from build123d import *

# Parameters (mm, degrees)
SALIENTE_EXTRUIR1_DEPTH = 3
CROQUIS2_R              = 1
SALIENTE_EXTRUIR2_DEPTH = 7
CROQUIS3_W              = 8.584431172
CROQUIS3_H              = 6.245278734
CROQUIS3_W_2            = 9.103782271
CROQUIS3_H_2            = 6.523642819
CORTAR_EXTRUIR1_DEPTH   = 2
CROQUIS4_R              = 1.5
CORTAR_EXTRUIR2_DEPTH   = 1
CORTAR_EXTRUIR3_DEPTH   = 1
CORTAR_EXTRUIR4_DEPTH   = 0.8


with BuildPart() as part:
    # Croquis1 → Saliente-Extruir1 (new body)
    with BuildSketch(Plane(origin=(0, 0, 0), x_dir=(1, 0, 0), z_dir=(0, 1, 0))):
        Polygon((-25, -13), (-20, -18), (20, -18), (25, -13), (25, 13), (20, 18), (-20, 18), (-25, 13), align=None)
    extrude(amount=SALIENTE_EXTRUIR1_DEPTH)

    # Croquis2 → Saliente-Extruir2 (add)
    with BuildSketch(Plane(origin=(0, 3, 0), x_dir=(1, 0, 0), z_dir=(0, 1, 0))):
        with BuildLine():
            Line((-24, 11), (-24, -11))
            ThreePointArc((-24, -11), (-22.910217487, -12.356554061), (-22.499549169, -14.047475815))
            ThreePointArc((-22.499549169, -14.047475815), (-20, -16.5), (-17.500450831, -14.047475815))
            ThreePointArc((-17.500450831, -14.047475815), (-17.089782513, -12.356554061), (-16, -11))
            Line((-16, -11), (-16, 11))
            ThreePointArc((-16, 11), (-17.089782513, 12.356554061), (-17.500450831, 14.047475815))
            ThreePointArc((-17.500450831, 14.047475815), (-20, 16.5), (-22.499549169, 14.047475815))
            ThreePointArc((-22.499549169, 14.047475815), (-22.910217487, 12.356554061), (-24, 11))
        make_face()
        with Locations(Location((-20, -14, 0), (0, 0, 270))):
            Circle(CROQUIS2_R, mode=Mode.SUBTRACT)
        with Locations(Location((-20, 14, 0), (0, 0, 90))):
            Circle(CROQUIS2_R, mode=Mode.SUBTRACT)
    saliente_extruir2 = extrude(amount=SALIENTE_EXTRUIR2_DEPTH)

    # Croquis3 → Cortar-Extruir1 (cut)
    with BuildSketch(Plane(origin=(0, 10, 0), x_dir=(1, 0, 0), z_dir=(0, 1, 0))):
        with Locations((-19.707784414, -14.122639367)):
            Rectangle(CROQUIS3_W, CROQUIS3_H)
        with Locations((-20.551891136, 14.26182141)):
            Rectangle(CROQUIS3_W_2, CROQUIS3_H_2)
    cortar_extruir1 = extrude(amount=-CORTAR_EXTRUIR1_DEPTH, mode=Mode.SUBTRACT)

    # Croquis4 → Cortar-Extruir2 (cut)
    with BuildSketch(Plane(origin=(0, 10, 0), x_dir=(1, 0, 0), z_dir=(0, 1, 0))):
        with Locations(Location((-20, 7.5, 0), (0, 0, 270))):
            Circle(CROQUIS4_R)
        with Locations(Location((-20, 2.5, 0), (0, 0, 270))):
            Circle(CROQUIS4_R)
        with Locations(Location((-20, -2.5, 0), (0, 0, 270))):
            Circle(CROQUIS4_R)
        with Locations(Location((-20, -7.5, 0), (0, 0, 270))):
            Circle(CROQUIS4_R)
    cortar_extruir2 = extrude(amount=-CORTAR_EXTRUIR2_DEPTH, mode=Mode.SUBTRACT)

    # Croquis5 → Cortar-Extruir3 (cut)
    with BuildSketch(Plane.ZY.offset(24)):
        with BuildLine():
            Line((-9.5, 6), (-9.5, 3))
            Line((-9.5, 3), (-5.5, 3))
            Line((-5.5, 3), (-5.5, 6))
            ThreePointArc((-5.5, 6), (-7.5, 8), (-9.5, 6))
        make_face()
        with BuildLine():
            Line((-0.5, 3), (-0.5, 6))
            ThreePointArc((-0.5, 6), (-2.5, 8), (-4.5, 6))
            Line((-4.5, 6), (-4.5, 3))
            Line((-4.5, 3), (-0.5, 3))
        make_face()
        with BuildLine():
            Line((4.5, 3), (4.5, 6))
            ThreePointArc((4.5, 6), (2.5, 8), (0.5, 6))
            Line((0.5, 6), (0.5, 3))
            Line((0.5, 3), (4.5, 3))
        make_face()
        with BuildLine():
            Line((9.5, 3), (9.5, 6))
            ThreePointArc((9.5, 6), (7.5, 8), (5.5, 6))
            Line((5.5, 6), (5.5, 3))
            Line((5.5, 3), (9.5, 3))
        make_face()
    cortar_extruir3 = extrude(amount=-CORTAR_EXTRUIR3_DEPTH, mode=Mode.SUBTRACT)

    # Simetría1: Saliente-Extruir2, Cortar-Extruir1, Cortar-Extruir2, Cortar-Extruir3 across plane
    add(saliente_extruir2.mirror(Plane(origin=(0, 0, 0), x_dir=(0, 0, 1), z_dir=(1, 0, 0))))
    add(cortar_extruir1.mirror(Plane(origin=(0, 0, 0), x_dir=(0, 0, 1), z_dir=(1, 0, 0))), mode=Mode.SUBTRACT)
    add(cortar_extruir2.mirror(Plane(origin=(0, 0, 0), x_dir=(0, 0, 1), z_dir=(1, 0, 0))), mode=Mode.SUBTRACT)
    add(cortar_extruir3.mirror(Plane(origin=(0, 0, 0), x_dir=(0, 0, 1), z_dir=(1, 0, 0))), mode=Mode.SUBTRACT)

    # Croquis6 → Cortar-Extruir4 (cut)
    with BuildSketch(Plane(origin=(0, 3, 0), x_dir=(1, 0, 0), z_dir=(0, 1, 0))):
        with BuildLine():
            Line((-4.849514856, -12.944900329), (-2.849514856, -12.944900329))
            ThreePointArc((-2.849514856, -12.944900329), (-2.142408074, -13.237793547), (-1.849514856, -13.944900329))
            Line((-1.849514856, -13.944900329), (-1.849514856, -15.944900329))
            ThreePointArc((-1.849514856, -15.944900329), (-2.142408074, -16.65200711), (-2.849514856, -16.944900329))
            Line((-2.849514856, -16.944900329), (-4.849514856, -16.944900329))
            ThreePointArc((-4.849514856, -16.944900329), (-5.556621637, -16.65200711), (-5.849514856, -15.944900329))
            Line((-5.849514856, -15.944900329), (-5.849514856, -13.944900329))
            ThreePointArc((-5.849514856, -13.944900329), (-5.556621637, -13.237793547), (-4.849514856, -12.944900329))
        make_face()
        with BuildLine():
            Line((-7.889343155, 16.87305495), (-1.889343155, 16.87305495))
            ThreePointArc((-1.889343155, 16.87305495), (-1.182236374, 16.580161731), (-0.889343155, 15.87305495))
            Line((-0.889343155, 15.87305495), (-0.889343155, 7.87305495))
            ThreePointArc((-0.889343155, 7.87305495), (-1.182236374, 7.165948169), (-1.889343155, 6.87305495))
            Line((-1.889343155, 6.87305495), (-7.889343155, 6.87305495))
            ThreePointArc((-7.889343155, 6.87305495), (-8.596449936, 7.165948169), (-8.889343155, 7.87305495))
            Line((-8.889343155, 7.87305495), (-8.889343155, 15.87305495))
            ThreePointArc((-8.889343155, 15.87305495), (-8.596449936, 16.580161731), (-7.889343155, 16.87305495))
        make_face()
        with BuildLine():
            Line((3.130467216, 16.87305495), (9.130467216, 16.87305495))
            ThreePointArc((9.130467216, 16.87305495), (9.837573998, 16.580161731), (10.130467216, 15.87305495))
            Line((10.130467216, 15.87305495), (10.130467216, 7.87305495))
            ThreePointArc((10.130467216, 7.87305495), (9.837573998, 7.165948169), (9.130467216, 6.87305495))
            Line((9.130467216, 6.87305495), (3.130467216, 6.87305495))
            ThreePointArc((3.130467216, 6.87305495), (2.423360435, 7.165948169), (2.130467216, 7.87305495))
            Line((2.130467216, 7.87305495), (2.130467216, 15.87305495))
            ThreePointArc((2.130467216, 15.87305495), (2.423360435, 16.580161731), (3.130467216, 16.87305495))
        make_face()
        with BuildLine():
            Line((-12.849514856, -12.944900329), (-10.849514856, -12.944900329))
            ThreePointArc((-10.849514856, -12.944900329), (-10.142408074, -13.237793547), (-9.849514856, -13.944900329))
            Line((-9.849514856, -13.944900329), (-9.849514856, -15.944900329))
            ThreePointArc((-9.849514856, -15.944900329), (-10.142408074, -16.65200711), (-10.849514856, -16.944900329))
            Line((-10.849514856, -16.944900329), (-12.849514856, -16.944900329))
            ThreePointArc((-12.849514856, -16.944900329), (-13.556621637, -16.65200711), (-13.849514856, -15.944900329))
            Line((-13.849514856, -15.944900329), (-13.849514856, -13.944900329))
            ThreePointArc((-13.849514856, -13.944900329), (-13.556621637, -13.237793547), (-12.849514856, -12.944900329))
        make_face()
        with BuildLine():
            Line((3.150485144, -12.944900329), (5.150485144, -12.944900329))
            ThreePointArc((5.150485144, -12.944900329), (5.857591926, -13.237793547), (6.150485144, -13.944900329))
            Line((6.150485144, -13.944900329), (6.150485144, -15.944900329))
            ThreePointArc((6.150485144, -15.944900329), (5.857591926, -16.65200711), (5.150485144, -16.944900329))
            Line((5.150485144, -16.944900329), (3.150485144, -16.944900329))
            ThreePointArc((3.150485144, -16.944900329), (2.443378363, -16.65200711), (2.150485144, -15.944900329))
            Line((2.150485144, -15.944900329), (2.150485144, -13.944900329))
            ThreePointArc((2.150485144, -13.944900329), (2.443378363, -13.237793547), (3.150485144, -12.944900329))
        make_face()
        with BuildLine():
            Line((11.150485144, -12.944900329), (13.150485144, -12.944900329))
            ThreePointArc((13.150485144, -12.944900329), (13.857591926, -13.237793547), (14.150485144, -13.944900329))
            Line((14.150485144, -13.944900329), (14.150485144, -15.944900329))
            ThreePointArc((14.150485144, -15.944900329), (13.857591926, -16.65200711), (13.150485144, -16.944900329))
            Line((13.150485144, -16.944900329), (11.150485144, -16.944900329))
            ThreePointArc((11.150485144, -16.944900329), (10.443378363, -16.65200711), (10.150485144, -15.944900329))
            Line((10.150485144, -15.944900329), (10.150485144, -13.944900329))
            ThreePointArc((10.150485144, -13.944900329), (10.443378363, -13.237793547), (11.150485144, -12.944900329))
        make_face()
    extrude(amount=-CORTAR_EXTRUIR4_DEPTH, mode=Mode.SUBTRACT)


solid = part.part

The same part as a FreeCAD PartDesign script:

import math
import FreeCAD as App
import Part
import Sketcher

V = App.Vector


def add_polygon(sketch, points):
    """Adds a closed chain of lines whose ends are joined by coincident constraints."""
    first, n = sketch.GeometryCount, len(points)
    for a, b in zip(points, points[1:] + points[:1]):
        sketch.addGeometry(Part.LineSegment(App.Vector(*a, 0), App.Vector(*b, 0)), False)
    for i in range(n):
        sketch.addConstraint(Sketcher.Constraint("Coincident", first + i, 2, first + (i + 1) % n, 1))

doc = App.newDocument("Part")
body = doc.addObject("PartDesign::Body", "Body")

sketch1 = doc.addObject("Sketcher::SketchObject", "Sketch")
body.addObject(sketch1)
sketch1.AttachmentSupport = (doc.XZ_Plane, [""])
sketch1.MapMode = "FlatFace"
add_polygon(sketch1, [(-25, 13), (-20, 18), (20, 18), (25, 13), (25, -13), (20, -18), (-20, -18), (-25, -13)])
sketch1.addConstraint([
    Sketcher.Constraint("Horizontal", 1),
    Sketcher.Constraint("Vertical", 3),
    Sketcher.Constraint("Horizontal", 5),
    Sketcher.Constraint("Vertical", 7),
    Sketcher.Constraint("Symmetric", 0, 2, 4, 2, -1, 1),
    Sketcher.Constraint("Symmetric", 2, 2, 6, 2, -1, 1),
    Sketcher.Constraint("Perpendicular", 0, 2),
    Sketcher.Constraint("Perpendicular", 2, 4),
    Sketcher.Constraint("Perpendicular", 4, 6),
    Sketcher.Constraint("Horizontal", 3, 2, 6, 2),
    Sketcher.Constraint("Vertical", 1, 2, 4, 2),
    Sketcher.Constraint("DistanceX", 1, 1, 1, 2, 40.0),
    Sketcher.Constraint("DistanceY", 3, 2, 3, 1, 26.0),
    Sketcher.Constraint("DistanceY", -1, 1, 0, 2, 18.0),
])
pad1 = doc.addObject("PartDesign::Pad", "Pad")
body.addObject(pad1)
pad1.Profile = sketch1
pad1.Length = 3
pad1.Reversed = True

sketch2 = doc.addObject("Sketcher::SketchObject", "Sketch001")
body.addObject(sketch2)
sketch2.AttachmentSupport = (doc.XZ_Plane, [""])
sketch2.MapMode = "FlatFace"
sketch2.AttachmentOffset = App.Placement(V(0, 0, -3), App.Rotation())
sketch2.addGeometry([
    Part.LineSegment(V(-24, -11, 0), V(-24, 11, 0)),
    Part.ArcOfCircle(Part.Circle(V(-26.5, 14.1, 0), V(0, 0, 1), 4), math.radians(-51), math.radians(-1)),
    Part.ArcOfCircle(Part.Circle(V(-20, 14, 0), V(0, 0, 1), 2.5), math.radians(1), math.radians(179)),
    Part.ArcOfCircle(Part.Circle(V(-13.5, 14.1, 0), V(0, 0, 1), 4), math.radians(-179), math.radians(-129)),
    Part.LineSegment(V(-16, 11, 0), V(-16, -11, 0)),
    Part.ArcOfCircle(Part.Circle(V(-13.5, -14.1, 0), V(0, 0, 1), 4), math.radians(129), math.radians(179)),
    Part.ArcOfCircle(Part.Circle(V(-20, -14, 0), V(0, 0, 1), 2.5), math.radians(-179), math.radians(-1)),
    Part.ArcOfCircle(Part.Circle(V(-26.5, -14.1, 0), V(0, 0, 1), 4), math.radians(1), math.radians(51)),
    Part.Circle(V(-20, 14, 0), V(0, 0, 1), 1),
    Part.Circle(V(-20, -14, 0), V(0, 0, 1), 1),
], False)
sketch2.addConstraint([
    Sketcher.Constraint("Coincident", 0, 2, 1, 1),
    Sketcher.Constraint("Tangent", 1, 2, 2, 2),
    Sketcher.Constraint("Tangent", 2, 1, 3, 1),
    Sketcher.Constraint("Coincident", 3, 2, 4, 1),
    Sketcher.Constraint("Coincident", 4, 2, 5, 1),
    Sketcher.Constraint("Tangent", 5, 2, 6, 2),
    Sketcher.Constraint("Tangent", 6, 1, 7, 1),
    Sketcher.Constraint("Coincident", 7, 2, 0, 1),
    Sketcher.Constraint("Vertical", 0),
    Sketcher.Constraint("Vertical", 4),
    Sketcher.Constraint("Coincident", 8, 3, 2, 3),
    Sketcher.Constraint("Coincident", 9, 3, 6, 3),
    Sketcher.Constraint("Equal", 1, 3),
    Sketcher.Constraint("Equal", 3, 5),
    Sketcher.Constraint("Equal", 2, 6),
    Sketcher.Constraint("Equal", 5, 7),
    Sketcher.Constraint("Equal", 8, 9),
    Sketcher.Constraint("Symmetric", 3, 3, 5, 3, -1),
    Sketcher.Constraint("Symmetric", 1, 3, 7, 3, -1),
    Sketcher.Constraint("Horizontal", 1, 3, 3, 3),
    Sketcher.Constraint("Horizontal", 0, 2, 3, 2),
    Sketcher.Constraint("Diameter", 8, 2.0),
    Sketcher.Constraint("Radius", 1, 4.0),
    Sketcher.Constraint("Radius", 2, 2.5),
    Sketcher.Constraint("DistanceY", 0, 1, 0, 2, 22.0),
    Sketcher.Constraint("DistanceX", 2, 3, -1, 1, 20.0),
    Sketcher.Constraint("DistanceY", -1, 1, 2, 3, 14.0),
    Sketcher.Constraint("DistanceX", 0, 2, -1, 1, 24.0),
])
pad2 = doc.addObject("PartDesign::Pad", "Pad001")
body.addObject(pad2)
pad2.Profile = sketch2
pad2.Length = 7
pad2.Reversed = True

sketch3 = doc.addObject("Sketcher::SketchObject", "Sketch002")
body.addObject(sketch3)
sketch3.AttachmentSupport = (doc.XZ_Plane, [""])
sketch3.MapMode = "FlatFace"
sketch3.AttachmentOffset = App.Placement(V(0, 0, -10), App.Rotation())
add_polygon(sketch3, [(-24, 11), (-24, 17), (-15, 17), (-15, 11)])
add_polygon(sketch3, [(-25, -18), (-25, -11), (-16, -11), (-16, -18)])
sketch3.addConstraint([
    Sketcher.Constraint("Vertical", 0),
    Sketcher.Constraint("Horizontal", 1),
    Sketcher.Constraint("Vertical", 2),
    Sketcher.Constraint("Horizontal", 3),
    Sketcher.Constraint("Vertical", 4),
    Sketcher.Constraint("Horizontal", 5),
    Sketcher.Constraint("Vertical", 6),
    Sketcher.Constraint("Horizontal", 7),
    Sketcher.Constraint("DistanceX", 0, 2, -1, 1, 24.0),
    Sketcher.Constraint("DistanceY", -1, 1, 2, 2, 11.0),
    Sketcher.Constraint("DistanceY", 4, 2, -1, 1, 11.0),
    Sketcher.Constraint("DistanceX", 5, 2, -1, 1, 16.0),
    Sketcher.Constraint("DistanceX", 1, 1, 1, 2, 8.584431),
    Sketcher.Constraint("DistanceY", 0, 1, 0, 2, 6.245279),
    Sketcher.Constraint("DistanceX", 5, 1, 5, 2, 9.103782),
    Sketcher.Constraint("DistanceY", 4, 1, 4, 2, 6.523643),
])
pocket1 = doc.addObject("PartDesign::Pocket", "Pocket")
body.addObject(pocket1)
pocket1.Profile = sketch3
pocket1.Length = 2
pocket1.Reversed = True

sketch4 = doc.addObject("Sketcher::SketchObject", "Sketch003")
body.addObject(sketch4)
sketch4.AttachmentSupport = (doc.XZ_Plane, [""])
sketch4.MapMode = "FlatFace"
sketch4.AttachmentOffset = App.Placement(V(0, 0, -10), App.Rotation())
sketch4.addGeometry([
    Part.Circle(V(-20, -7.5, 0), V(0, 0, 1), 1.5),
    Part.Circle(V(-20, -2.5, 0), V(0, 0, 1), 1.5),
    Part.Circle(V(-20, 2.5, 0), V(0, 0, 1), 1.5),
    Part.Circle(V(-20, 7.5, 0), V(0, 0, 1), 1.5),
], False)
sketch4.addConstraint([
    Sketcher.Constraint("Equal", 0, 1),
    Sketcher.Constraint("Equal", 1, 2),
    Sketcher.Constraint("Equal", 2, 3),
    Sketcher.Constraint("Symmetric", 1, 3, 2, 3, -1),
    Sketcher.Constraint("Symmetric", 0, 3, 3, 3, -1),
    Sketcher.Constraint("Vertical", 0, 3, 1, 3),
    Sketcher.Constraint("Diameter", 0, 3.0),
    Sketcher.Constraint("DistanceX", 0, 3, -1, 1, 20.0),
    Sketcher.Constraint("DistanceY", 0, 3, 1, 3, 5.0),
    Sketcher.Constraint("DistanceY", 1, 3, 2, 3, 5.0),
])
pocket2 = doc.addObject("PartDesign::Pocket", "Pocket001")
body.addObject(pocket2)
pocket2.Profile = sketch4
pocket2.Length = 1
pocket2.Reversed = True

sketch5 = doc.addObject("Sketcher::SketchObject", "Sketch004")
body.addObject(sketch5)
sketch5.AttachmentSupport = (doc.YZ_Plane, [""])
sketch5.MapMode = "FlatFace"
sketch5.AttachmentOffset = App.Placement(V(0, 0, -24), App.Rotation())
sketch5.addGeometry([
    Part.LineSegment(V(6, -9.5, 0), V(3, -9.5, 0)),
    Part.LineSegment(V(3, -9.5, 0), V(3, -5.5, 0)),
    Part.LineSegment(V(3, -5.5, 0), V(6, -5.5, 0)),
    Part.ArcOfCircle(Part.Circle(V(6, -7.5, 0), V(0, 0, 1), 2), math.radians(-90), math.radians(90)),
    Part.LineSegment(V(3, -0.5, 0), V(6, -0.5, 0)),
    Part.ArcOfCircle(Part.Circle(V(6, -2.5, 0), V(0, 0, 1), 2), math.radians(-90), math.radians(90)),
    Part.LineSegment(V(6, -4.5, 0), V(3, -4.5, 0)),
    Part.LineSegment(V(3, -4.5, 0), V(3, -0.5, 0)),
    Part.LineSegment(V(3, 4.5, 0), V(6, 4.5, 0)),
    Part.ArcOfCircle(Part.Circle(V(6, 2.5, 0), V(0, 0, 1), 2), math.radians(-90), math.radians(90)),
    Part.LineSegment(V(6, 0.5, 0), V(3, 0.5, 0)),
    Part.LineSegment(V(3, 0.5, 0), V(3, 4.5, 0)),
    Part.LineSegment(V(3, 9.5, 0), V(6, 9.5, 0)),
    Part.ArcOfCircle(Part.Circle(V(6, 7.5, 0), V(0, 0, 1), 2), math.radians(-90), math.radians(90)),
    Part.LineSegment(V(6, 5.5, 0), V(3, 5.5, 0)),
    Part.LineSegment(V(3, 5.5, 0), V(3, 9.5, 0)),
], False)
sketch5.addConstraint([
    Sketcher.Constraint("Coincident", 0, 2, 1, 1),
    Sketcher.Constraint("Coincident", 1, 2, 2, 1),
    Sketcher.Constraint("Tangent", 2, 2, 3, 2),
    Sketcher.Constraint("Tangent", 3, 1, 0, 1),
    Sketcher.Constraint("Tangent", 4, 2, 5, 2),
    Sketcher.Constraint("Tangent", 5, 1, 6, 1),
    Sketcher.Constraint("Coincident", 6, 2, 7, 1),
    Sketcher.Constraint("Coincident", 7, 2, 4, 1),
    Sketcher.Constraint("Tangent", 8, 2, 9, 2),
    Sketcher.Constraint("Tangent", 9, 1, 10, 1),
    Sketcher.Constraint("Coincident", 10, 2, 11, 1),
    Sketcher.Constraint("Coincident", 11, 2, 8, 1),
    Sketcher.Constraint("Tangent", 12, 2, 13, 2),
    Sketcher.Constraint("Tangent", 13, 1, 14, 1),
    Sketcher.Constraint("Coincident", 14, 2, 15, 1),
    Sketcher.Constraint("Coincident", 15, 2, 12, 1),
    Sketcher.Constraint("Horizontal", 0),
    Sketcher.Constraint("Vertical", 1),
    Sketcher.Constraint("Horizontal", 2),
    Sketcher.Constraint("Horizontal", 4),
    Sketcher.Constraint("Horizontal", 6),
    Sketcher.Constraint("Vertical", 7),
    Sketcher.Constraint("Horizontal", 8),
    Sketcher.Constraint("Horizontal", 10),
    Sketcher.Constraint("Vertical", 11),
    Sketcher.Constraint("Horizontal", 12),
    Sketcher.Constraint("Horizontal", 14),
    Sketcher.Constraint("Vertical", 15),
    Sketcher.Constraint("Equal", 3, 5),
    Sketcher.Constraint("Equal", 5, 9),
    Sketcher.Constraint("Equal", 9, 13),
    Sketcher.Constraint("Symmetric", 5, 3, 9, 3, -1),
    Sketcher.Constraint("Symmetric", 3, 3, 13, 3, -1),
    Sketcher.Constraint("Vertical", 3, 3, 5, 3),
    Sketcher.Constraint("Vertical", 1, 2, 6, 2),
    Sketcher.Constraint("Vertical", 7, 2, 10, 2),
    Sketcher.Constraint("Vertical", 11, 2, 14, 2),
    Sketcher.Constraint("Radius", 3, 2.0),
    Sketcher.Constraint("DistanceX", 0, 2, 0, 1, 3.0),
    Sketcher.Constraint("DistanceX", -1, 1, 3, 3, 6.0),
    Sketcher.Constraint("DistanceY", 3, 3, 5, 3, 5.0),
    Sketcher.Constraint("DistanceY", 5, 3, 9, 3, 5.0),
])
pocket3 = doc.addObject("PartDesign::Pocket", "Pocket002")
body.addObject(pocket3)
pocket3.Profile = sketch5
pocket3.Length = 1
pocket3.Reversed = True
doc.recompute()

mirrored = doc.addObject("PartDesign::Mirrored", "Mirrored")
body.addObject(mirrored)
mirrored.Originals = [pad2, pocket1, pocket2, pocket3]
mirrored.MirrorPlane = (doc.YZ_Plane, [""])
body.Tip = mirrored

sketch6 = doc.addObject("Sketcher::SketchObject", "Sketch005")
body.addObject(sketch6)
sketch6.AttachmentSupport = (doc.XZ_Plane, [""])
sketch6.MapMode = "FlatFace"
sketch6.AttachmentOffset = App.Placement(V(0, 0, -3), App.Rotation())
sketch6.addGeometry([
    Part.LineSegment(V(-2.8, 12.9, 0), V(-4.8, 12.9, 0)),
    Part.ArcOfCircle(Part.Circle(V(-4.8, 13.9, 0), V(0, 0, 1), 1), math.radians(180), math.radians(270)),
    Part.LineSegment(V(-5.8, 13.9, 0), V(-5.8, 15.9, 0)),
    Part.ArcOfCircle(Part.Circle(V(-4.8, 15.9, 0), V(0, 0, 1), 1), math.radians(90), math.radians(180)),
    Part.LineSegment(V(-4.8, 16.9, 0), V(-2.8, 16.9, 0)),
    Part.ArcOfCircle(Part.Circle(V(-2.8, 15.9, 0), V(0, 0, 1), 1), math.radians(0), math.radians(90)),
    Part.LineSegment(V(-1.8, 15.9, 0), V(-1.8, 13.9, 0)),
    Part.ArcOfCircle(Part.Circle(V(-2.8, 13.9, 0), V(0, 0, 1), 1), math.radians(-90), math.radians(0)),
    Part.LineSegment(V(-1.9, -16.9, 0), V(-7.9, -16.9, 0)),
    Part.ArcOfCircle(Part.Circle(V(-7.9, -15.9, 0), V(0, 0, 1), 1), math.radians(-180), math.radians(-90)),
    Part.LineSegment(V(-8.9, -15.9, 0), V(-8.9, -7.9, 0)),
    Part.ArcOfCircle(Part.Circle(V(-7.9, -7.9, 0), V(0, 0, 1), 1), math.radians(90), math.radians(180)),
    Part.LineSegment(V(-7.9, -6.9, 0), V(-1.9, -6.9, 0)),
    Part.ArcOfCircle(Part.Circle(V(-1.9, -7.9, 0), V(0, 0, 1), 1), math.radians(0), math.radians(90)),
    Part.LineSegment(V(-0.9, -7.9, 0), V(-0.9, -15.9, 0)),
    Part.ArcOfCircle(Part.Circle(V(-1.9, -15.9, 0), V(0, 0, 1), 1), math.radians(-90), math.radians(0)),
    Part.LineSegment(V(9.1, -16.9, 0), V(3.1, -16.9, 0)),
    Part.ArcOfCircle(Part.Circle(V(3.1, -15.9, 0), V(0, 0, 1), 1), math.radians(-180), math.radians(-90)),
    Part.LineSegment(V(2.1, -15.9, 0), V(2.1, -7.9, 0)),
    Part.ArcOfCircle(Part.Circle(V(3.1, -7.9, 0), V(0, 0, 1), 1), math.radians(90), math.radians(180)),
    Part.LineSegment(V(3.1, -6.9, 0), V(9.1, -6.9, 0)),
    Part.ArcOfCircle(Part.Circle(V(9.1, -7.9, 0), V(0, 0, 1), 1), math.radians(0), math.radians(90)),
    Part.LineSegment(V(10.1, -7.9, 0), V(10.1, -15.9, 0)),
    Part.ArcOfCircle(Part.Circle(V(9.1, -15.9, 0), V(0, 0, 1), 1), math.radians(-90), math.radians(0)),
    Part.LineSegment(V(-10.8, 12.9, 0), V(-12.8, 12.9, 0)),
    Part.ArcOfCircle(Part.Circle(V(-12.8, 13.9, 0), V(0, 0, 1), 1), math.radians(180), math.radians(270)),
    Part.LineSegment(V(-13.8, 13.9, 0), V(-13.8, 15.9, 0)),
    Part.ArcOfCircle(Part.Circle(V(-12.8, 15.9, 0), V(0, 0, 1), 1), math.radians(90), math.radians(180)),
    Part.LineSegment(V(-12.8, 16.9, 0), V(-10.8, 16.9, 0)),
    Part.ArcOfCircle(Part.Circle(V(-10.8, 15.9, 0), V(0, 0, 1), 1), math.radians(0), math.radians(90)),
    Part.LineSegment(V(-9.8, 15.9, 0), V(-9.8, 13.9, 0)),
    Part.ArcOfCircle(Part.Circle(V(-10.8, 13.9, 0), V(0, 0, 1), 1), math.radians(-90), math.radians(0)),
    Part.LineSegment(V(5.2, 12.9, 0), V(3.2, 12.9, 0)),
    Part.ArcOfCircle(Part.Circle(V(3.2, 13.9, 0), V(0, 0, 1), 1), math.radians(180), math.radians(270)),
    Part.LineSegment(V(2.2, 13.9, 0), V(2.2, 15.9, 0)),
    Part.ArcOfCircle(Part.Circle(V(3.2, 15.9, 0), V(0, 0, 1), 1), math.radians(90), math.radians(180)),
    Part.LineSegment(V(3.2, 16.9, 0), V(5.2, 16.9, 0)),
    Part.ArcOfCircle(Part.Circle(V(5.2, 15.9, 0), V(0, 0, 1), 1), math.radians(0), math.radians(90)),
    Part.LineSegment(V(6.2, 15.9, 0), V(6.2, 13.9, 0)),
    Part.ArcOfCircle(Part.Circle(V(5.2, 13.9, 0), V(0, 0, 1), 1), math.radians(-90), math.radians(0)),
    Part.LineSegment(V(13.2, 12.9, 0), V(11.2, 12.9, 0)),
    Part.ArcOfCircle(Part.Circle(V(11.2, 13.9, 0), V(0, 0, 1), 1), math.radians(180), math.radians(270)),
    Part.LineSegment(V(10.2, 13.9, 0), V(10.2, 15.9, 0)),
    Part.ArcOfCircle(Part.Circle(V(11.2, 15.9, 0), V(0, 0, 1), 1), math.radians(90), math.radians(180)),
    Part.LineSegment(V(11.2, 16.9, 0), V(13.2, 16.9, 0)),
    Part.ArcOfCircle(Part.Circle(V(13.2, 15.9, 0), V(0, 0, 1), 1), math.radians(0), math.radians(90)),
    Part.LineSegment(V(14.2, 15.9, 0), V(14.2, 13.9, 0)),
    Part.ArcOfCircle(Part.Circle(V(13.2, 13.9, 0), V(0, 0, 1), 1), math.radians(-90), math.radians(0)),
], False)
sketch6.addConstraint([
    Sketcher.Constraint("Tangent", 0, 2, 1, 2),
    Sketcher.Constraint("Tangent", 1, 1, 2, 1),
    Sketcher.Constraint("Tangent", 2, 2, 3, 2),
    Sketcher.Constraint("Tangent", 3, 1, 4, 1),
    Sketcher.Constraint("Tangent", 4, 2, 5, 2),
    Sketcher.Constraint("Tangent", 5, 1, 6, 1),
    Sketcher.Constraint("Tangent", 6, 2, 7, 2),
    Sketcher.Constraint("Tangent", 7, 1, 0, 1),
    Sketcher.Constraint("Tangent", 8, 2, 9, 2),
    Sketcher.Constraint("Tangent", 9, 1, 10, 1),
    Sketcher.Constraint("Tangent", 10, 2, 11, 2),
    Sketcher.Constraint("Tangent", 11, 1, 12, 1),
    Sketcher.Constraint("Tangent", 12, 2, 13, 2),
    Sketcher.Constraint("Tangent", 13, 1, 14, 1),
    Sketcher.Constraint("Tangent", 14, 2, 15, 2),
    Sketcher.Constraint("Tangent", 15, 1, 8, 1),
    Sketcher.Constraint("Tangent", 16, 2, 17, 2),
    Sketcher.Constraint("Tangent", 17, 1, 18, 1),
    Sketcher.Constraint("Tangent", 18, 2, 19, 2),
    Sketcher.Constraint("Tangent", 19, 1, 20, 1),
    Sketcher.Constraint("Tangent", 20, 2, 21, 2),
    Sketcher.Constraint("Tangent", 21, 1, 22, 1),
    Sketcher.Constraint("Tangent", 22, 2, 23, 2),
    Sketcher.Constraint("Tangent", 23, 1, 16, 1),
    Sketcher.Constraint("Tangent", 24, 2, 25, 2),
    Sketcher.Constraint("Tangent", 25, 1, 26, 1),
    Sketcher.Constraint("Tangent", 26, 2, 27, 2),
    Sketcher.Constraint("Tangent", 27, 1, 28, 1),
    Sketcher.Constraint("Tangent", 28, 2, 29, 2),
    Sketcher.Constraint("Tangent", 29, 1, 30, 1),
    Sketcher.Constraint("Tangent", 30, 2, 31, 2),
    Sketcher.Constraint("Tangent", 31, 1, 24, 1),
    Sketcher.Constraint("Tangent", 32, 2, 33, 2),
    Sketcher.Constraint("Tangent", 33, 1, 34, 1),
    Sketcher.Constraint("Tangent", 34, 2, 35, 2),
    Sketcher.Constraint("Tangent", 35, 1, 36, 1),
    Sketcher.Constraint("Tangent", 36, 2, 37, 2),
    Sketcher.Constraint("Tangent", 37, 1, 38, 1),
    Sketcher.Constraint("Tangent", 38, 2, 39, 2),
    Sketcher.Constraint("Tangent", 39, 1, 32, 1),
    Sketcher.Constraint("Tangent", 40, 2, 41, 2),
    Sketcher.Constraint("Tangent", 41, 1, 42, 1),
    Sketcher.Constraint("Tangent", 42, 2, 43, 2),
    Sketcher.Constraint("Tangent", 43, 1, 44, 1),
    Sketcher.Constraint("Tangent", 44, 2, 45, 2),
    Sketcher.Constraint("Tangent", 45, 1, 46, 1),
    Sketcher.Constraint("Tangent", 46, 2, 47, 2),
    Sketcher.Constraint("Tangent", 47, 1, 40, 1),
    Sketcher.Constraint("Horizontal", 0),
    Sketcher.Constraint("Vertical", 2),
    Sketcher.Constraint("Horizontal", 4),
    Sketcher.Constraint("Vertical", 6),
    Sketcher.Constraint("Horizontal", 8),
    Sketcher.Constraint("Vertical", 10),
    Sketcher.Constraint("Horizontal", 12),
    Sketcher.Constraint("Vertical", 14),
    Sketcher.Constraint("Horizontal", 16),
    Sketcher.Constraint("Vertical", 18),
    Sketcher.Constraint("Horizontal", 20),
    Sketcher.Constraint("Vertical", 22),
    Sketcher.Constraint("Horizontal", 24),
    Sketcher.Constraint("Vertical", 26),
    Sketcher.Constraint("Horizontal", 28),
    Sketcher.Constraint("Vertical", 30),
    Sketcher.Constraint("Horizontal", 32),
    Sketcher.Constraint("Vertical", 34),
    Sketcher.Constraint("Horizontal", 36),
    Sketcher.Constraint("Vertical", 38),
    Sketcher.Constraint("Horizontal", 40),
    Sketcher.Constraint("Vertical", 42),
    Sketcher.Constraint("Horizontal", 44),
    Sketcher.Constraint("Vertical", 46),
    Sketcher.Constraint("Equal", 1, 3),
    Sketcher.Constraint("Equal", 3, 5),
    Sketcher.Constraint("Equal", 5, 7),
    Sketcher.Constraint("Equal", 7, 9),
    Sketcher.Constraint("Equal", 9, 11),
    Sketcher.Constraint("Equal", 11, 13),
    Sketcher.Constraint("Equal", 13, 15),
    Sketcher.Constraint("Equal", 15, 17),
    Sketcher.Constraint("Equal", 17, 19),
    Sketcher.Constraint("Equal", 19, 21),
    Sketcher.Constraint("Equal", 21, 23),
    Sketcher.Constraint("Equal", 23, 25),
    Sketcher.Constraint("Equal", 25, 27),
    Sketcher.Constraint("Equal", 27, 29),
    Sketcher.Constraint("Equal", 29, 31),
    Sketcher.Constraint("Equal", 31, 33),
    Sketcher.Constraint("Equal", 33, 35),
    Sketcher.Constraint("Equal", 35, 37),
    Sketcher.Constraint("Equal", 37, 39),
    Sketcher.Constraint("Equal", 39, 41),
    Sketcher.Constraint("Equal", 41, 43),
    Sketcher.Constraint("Equal", 43, 45),
    Sketcher.Constraint("Equal", 45, 47),
    Sketcher.Constraint("Horizontal", 15, 3, 17, 3),
    Sketcher.Constraint("Horizontal", 13, 3, 19, 3),
    Sketcher.Constraint("Horizontal", 7, 3, 25, 3),
    Sketcher.Constraint("Horizontal", 5, 3, 27, 3),
    Sketcher.Constraint("Horizontal", 31, 3, 33, 3),
    Sketcher.Constraint("Horizontal", 29, 3, 35, 3),
    Sketcher.Constraint("Horizontal", 39, 3, 41, 3),
    Sketcher.Constraint("Horizontal", 37, 3, 43, 3),
    Sketcher.Constraint("Equal", 12, 16),
    Sketcher.Constraint("Equal", 4, 24),
    Sketcher.Constraint("Equal", 28, 32),
    Sketcher.Constraint("Equal", 36, 40),
    Sketcher.Constraint("Equal", 44, 2),
    Sketcher.Constraint("Radius", 1, 1.0),
    Sketcher.Constraint("DistanceX", 0, 2, 0, 1, 2.0),
    Sketcher.Constraint("DistanceX", 8, 2, 8, 1, 6.0),
    Sketcher.Constraint("DistanceY", 10, 1, 10, 2, 8.0),
    Sketcher.Constraint("DistanceY", -1, 1, 1, 3, 13.9449),
    Sketcher.Constraint("DistanceX", 1, 3, -1, 1, 4.849515),
    Sketcher.Constraint("DistanceX", 9, 3, -1, 1, 7.889343),
    Sketcher.Constraint("DistanceY", 9, 3, -1, 1, 15.873055),
    Sketcher.Constraint("DistanceX", -1, 1, 17, 3, 3.130467),
    Sketcher.Constraint("DistanceX", 25, 3, -1, 1, 12.849515),
    Sketcher.Constraint("DistanceX", -1, 1, 33, 3, 3.150485),
    Sketcher.Constraint("DistanceX", -1, 1, 41, 3, 11.150485),
])
pocket4 = doc.addObject("PartDesign::Pocket", "Pocket003")
body.addObject(pocket4)
pocket4.Profile = sketch6
pocket4.Length = 0.8
pocket4.Reversed = True

doc.recompute()
